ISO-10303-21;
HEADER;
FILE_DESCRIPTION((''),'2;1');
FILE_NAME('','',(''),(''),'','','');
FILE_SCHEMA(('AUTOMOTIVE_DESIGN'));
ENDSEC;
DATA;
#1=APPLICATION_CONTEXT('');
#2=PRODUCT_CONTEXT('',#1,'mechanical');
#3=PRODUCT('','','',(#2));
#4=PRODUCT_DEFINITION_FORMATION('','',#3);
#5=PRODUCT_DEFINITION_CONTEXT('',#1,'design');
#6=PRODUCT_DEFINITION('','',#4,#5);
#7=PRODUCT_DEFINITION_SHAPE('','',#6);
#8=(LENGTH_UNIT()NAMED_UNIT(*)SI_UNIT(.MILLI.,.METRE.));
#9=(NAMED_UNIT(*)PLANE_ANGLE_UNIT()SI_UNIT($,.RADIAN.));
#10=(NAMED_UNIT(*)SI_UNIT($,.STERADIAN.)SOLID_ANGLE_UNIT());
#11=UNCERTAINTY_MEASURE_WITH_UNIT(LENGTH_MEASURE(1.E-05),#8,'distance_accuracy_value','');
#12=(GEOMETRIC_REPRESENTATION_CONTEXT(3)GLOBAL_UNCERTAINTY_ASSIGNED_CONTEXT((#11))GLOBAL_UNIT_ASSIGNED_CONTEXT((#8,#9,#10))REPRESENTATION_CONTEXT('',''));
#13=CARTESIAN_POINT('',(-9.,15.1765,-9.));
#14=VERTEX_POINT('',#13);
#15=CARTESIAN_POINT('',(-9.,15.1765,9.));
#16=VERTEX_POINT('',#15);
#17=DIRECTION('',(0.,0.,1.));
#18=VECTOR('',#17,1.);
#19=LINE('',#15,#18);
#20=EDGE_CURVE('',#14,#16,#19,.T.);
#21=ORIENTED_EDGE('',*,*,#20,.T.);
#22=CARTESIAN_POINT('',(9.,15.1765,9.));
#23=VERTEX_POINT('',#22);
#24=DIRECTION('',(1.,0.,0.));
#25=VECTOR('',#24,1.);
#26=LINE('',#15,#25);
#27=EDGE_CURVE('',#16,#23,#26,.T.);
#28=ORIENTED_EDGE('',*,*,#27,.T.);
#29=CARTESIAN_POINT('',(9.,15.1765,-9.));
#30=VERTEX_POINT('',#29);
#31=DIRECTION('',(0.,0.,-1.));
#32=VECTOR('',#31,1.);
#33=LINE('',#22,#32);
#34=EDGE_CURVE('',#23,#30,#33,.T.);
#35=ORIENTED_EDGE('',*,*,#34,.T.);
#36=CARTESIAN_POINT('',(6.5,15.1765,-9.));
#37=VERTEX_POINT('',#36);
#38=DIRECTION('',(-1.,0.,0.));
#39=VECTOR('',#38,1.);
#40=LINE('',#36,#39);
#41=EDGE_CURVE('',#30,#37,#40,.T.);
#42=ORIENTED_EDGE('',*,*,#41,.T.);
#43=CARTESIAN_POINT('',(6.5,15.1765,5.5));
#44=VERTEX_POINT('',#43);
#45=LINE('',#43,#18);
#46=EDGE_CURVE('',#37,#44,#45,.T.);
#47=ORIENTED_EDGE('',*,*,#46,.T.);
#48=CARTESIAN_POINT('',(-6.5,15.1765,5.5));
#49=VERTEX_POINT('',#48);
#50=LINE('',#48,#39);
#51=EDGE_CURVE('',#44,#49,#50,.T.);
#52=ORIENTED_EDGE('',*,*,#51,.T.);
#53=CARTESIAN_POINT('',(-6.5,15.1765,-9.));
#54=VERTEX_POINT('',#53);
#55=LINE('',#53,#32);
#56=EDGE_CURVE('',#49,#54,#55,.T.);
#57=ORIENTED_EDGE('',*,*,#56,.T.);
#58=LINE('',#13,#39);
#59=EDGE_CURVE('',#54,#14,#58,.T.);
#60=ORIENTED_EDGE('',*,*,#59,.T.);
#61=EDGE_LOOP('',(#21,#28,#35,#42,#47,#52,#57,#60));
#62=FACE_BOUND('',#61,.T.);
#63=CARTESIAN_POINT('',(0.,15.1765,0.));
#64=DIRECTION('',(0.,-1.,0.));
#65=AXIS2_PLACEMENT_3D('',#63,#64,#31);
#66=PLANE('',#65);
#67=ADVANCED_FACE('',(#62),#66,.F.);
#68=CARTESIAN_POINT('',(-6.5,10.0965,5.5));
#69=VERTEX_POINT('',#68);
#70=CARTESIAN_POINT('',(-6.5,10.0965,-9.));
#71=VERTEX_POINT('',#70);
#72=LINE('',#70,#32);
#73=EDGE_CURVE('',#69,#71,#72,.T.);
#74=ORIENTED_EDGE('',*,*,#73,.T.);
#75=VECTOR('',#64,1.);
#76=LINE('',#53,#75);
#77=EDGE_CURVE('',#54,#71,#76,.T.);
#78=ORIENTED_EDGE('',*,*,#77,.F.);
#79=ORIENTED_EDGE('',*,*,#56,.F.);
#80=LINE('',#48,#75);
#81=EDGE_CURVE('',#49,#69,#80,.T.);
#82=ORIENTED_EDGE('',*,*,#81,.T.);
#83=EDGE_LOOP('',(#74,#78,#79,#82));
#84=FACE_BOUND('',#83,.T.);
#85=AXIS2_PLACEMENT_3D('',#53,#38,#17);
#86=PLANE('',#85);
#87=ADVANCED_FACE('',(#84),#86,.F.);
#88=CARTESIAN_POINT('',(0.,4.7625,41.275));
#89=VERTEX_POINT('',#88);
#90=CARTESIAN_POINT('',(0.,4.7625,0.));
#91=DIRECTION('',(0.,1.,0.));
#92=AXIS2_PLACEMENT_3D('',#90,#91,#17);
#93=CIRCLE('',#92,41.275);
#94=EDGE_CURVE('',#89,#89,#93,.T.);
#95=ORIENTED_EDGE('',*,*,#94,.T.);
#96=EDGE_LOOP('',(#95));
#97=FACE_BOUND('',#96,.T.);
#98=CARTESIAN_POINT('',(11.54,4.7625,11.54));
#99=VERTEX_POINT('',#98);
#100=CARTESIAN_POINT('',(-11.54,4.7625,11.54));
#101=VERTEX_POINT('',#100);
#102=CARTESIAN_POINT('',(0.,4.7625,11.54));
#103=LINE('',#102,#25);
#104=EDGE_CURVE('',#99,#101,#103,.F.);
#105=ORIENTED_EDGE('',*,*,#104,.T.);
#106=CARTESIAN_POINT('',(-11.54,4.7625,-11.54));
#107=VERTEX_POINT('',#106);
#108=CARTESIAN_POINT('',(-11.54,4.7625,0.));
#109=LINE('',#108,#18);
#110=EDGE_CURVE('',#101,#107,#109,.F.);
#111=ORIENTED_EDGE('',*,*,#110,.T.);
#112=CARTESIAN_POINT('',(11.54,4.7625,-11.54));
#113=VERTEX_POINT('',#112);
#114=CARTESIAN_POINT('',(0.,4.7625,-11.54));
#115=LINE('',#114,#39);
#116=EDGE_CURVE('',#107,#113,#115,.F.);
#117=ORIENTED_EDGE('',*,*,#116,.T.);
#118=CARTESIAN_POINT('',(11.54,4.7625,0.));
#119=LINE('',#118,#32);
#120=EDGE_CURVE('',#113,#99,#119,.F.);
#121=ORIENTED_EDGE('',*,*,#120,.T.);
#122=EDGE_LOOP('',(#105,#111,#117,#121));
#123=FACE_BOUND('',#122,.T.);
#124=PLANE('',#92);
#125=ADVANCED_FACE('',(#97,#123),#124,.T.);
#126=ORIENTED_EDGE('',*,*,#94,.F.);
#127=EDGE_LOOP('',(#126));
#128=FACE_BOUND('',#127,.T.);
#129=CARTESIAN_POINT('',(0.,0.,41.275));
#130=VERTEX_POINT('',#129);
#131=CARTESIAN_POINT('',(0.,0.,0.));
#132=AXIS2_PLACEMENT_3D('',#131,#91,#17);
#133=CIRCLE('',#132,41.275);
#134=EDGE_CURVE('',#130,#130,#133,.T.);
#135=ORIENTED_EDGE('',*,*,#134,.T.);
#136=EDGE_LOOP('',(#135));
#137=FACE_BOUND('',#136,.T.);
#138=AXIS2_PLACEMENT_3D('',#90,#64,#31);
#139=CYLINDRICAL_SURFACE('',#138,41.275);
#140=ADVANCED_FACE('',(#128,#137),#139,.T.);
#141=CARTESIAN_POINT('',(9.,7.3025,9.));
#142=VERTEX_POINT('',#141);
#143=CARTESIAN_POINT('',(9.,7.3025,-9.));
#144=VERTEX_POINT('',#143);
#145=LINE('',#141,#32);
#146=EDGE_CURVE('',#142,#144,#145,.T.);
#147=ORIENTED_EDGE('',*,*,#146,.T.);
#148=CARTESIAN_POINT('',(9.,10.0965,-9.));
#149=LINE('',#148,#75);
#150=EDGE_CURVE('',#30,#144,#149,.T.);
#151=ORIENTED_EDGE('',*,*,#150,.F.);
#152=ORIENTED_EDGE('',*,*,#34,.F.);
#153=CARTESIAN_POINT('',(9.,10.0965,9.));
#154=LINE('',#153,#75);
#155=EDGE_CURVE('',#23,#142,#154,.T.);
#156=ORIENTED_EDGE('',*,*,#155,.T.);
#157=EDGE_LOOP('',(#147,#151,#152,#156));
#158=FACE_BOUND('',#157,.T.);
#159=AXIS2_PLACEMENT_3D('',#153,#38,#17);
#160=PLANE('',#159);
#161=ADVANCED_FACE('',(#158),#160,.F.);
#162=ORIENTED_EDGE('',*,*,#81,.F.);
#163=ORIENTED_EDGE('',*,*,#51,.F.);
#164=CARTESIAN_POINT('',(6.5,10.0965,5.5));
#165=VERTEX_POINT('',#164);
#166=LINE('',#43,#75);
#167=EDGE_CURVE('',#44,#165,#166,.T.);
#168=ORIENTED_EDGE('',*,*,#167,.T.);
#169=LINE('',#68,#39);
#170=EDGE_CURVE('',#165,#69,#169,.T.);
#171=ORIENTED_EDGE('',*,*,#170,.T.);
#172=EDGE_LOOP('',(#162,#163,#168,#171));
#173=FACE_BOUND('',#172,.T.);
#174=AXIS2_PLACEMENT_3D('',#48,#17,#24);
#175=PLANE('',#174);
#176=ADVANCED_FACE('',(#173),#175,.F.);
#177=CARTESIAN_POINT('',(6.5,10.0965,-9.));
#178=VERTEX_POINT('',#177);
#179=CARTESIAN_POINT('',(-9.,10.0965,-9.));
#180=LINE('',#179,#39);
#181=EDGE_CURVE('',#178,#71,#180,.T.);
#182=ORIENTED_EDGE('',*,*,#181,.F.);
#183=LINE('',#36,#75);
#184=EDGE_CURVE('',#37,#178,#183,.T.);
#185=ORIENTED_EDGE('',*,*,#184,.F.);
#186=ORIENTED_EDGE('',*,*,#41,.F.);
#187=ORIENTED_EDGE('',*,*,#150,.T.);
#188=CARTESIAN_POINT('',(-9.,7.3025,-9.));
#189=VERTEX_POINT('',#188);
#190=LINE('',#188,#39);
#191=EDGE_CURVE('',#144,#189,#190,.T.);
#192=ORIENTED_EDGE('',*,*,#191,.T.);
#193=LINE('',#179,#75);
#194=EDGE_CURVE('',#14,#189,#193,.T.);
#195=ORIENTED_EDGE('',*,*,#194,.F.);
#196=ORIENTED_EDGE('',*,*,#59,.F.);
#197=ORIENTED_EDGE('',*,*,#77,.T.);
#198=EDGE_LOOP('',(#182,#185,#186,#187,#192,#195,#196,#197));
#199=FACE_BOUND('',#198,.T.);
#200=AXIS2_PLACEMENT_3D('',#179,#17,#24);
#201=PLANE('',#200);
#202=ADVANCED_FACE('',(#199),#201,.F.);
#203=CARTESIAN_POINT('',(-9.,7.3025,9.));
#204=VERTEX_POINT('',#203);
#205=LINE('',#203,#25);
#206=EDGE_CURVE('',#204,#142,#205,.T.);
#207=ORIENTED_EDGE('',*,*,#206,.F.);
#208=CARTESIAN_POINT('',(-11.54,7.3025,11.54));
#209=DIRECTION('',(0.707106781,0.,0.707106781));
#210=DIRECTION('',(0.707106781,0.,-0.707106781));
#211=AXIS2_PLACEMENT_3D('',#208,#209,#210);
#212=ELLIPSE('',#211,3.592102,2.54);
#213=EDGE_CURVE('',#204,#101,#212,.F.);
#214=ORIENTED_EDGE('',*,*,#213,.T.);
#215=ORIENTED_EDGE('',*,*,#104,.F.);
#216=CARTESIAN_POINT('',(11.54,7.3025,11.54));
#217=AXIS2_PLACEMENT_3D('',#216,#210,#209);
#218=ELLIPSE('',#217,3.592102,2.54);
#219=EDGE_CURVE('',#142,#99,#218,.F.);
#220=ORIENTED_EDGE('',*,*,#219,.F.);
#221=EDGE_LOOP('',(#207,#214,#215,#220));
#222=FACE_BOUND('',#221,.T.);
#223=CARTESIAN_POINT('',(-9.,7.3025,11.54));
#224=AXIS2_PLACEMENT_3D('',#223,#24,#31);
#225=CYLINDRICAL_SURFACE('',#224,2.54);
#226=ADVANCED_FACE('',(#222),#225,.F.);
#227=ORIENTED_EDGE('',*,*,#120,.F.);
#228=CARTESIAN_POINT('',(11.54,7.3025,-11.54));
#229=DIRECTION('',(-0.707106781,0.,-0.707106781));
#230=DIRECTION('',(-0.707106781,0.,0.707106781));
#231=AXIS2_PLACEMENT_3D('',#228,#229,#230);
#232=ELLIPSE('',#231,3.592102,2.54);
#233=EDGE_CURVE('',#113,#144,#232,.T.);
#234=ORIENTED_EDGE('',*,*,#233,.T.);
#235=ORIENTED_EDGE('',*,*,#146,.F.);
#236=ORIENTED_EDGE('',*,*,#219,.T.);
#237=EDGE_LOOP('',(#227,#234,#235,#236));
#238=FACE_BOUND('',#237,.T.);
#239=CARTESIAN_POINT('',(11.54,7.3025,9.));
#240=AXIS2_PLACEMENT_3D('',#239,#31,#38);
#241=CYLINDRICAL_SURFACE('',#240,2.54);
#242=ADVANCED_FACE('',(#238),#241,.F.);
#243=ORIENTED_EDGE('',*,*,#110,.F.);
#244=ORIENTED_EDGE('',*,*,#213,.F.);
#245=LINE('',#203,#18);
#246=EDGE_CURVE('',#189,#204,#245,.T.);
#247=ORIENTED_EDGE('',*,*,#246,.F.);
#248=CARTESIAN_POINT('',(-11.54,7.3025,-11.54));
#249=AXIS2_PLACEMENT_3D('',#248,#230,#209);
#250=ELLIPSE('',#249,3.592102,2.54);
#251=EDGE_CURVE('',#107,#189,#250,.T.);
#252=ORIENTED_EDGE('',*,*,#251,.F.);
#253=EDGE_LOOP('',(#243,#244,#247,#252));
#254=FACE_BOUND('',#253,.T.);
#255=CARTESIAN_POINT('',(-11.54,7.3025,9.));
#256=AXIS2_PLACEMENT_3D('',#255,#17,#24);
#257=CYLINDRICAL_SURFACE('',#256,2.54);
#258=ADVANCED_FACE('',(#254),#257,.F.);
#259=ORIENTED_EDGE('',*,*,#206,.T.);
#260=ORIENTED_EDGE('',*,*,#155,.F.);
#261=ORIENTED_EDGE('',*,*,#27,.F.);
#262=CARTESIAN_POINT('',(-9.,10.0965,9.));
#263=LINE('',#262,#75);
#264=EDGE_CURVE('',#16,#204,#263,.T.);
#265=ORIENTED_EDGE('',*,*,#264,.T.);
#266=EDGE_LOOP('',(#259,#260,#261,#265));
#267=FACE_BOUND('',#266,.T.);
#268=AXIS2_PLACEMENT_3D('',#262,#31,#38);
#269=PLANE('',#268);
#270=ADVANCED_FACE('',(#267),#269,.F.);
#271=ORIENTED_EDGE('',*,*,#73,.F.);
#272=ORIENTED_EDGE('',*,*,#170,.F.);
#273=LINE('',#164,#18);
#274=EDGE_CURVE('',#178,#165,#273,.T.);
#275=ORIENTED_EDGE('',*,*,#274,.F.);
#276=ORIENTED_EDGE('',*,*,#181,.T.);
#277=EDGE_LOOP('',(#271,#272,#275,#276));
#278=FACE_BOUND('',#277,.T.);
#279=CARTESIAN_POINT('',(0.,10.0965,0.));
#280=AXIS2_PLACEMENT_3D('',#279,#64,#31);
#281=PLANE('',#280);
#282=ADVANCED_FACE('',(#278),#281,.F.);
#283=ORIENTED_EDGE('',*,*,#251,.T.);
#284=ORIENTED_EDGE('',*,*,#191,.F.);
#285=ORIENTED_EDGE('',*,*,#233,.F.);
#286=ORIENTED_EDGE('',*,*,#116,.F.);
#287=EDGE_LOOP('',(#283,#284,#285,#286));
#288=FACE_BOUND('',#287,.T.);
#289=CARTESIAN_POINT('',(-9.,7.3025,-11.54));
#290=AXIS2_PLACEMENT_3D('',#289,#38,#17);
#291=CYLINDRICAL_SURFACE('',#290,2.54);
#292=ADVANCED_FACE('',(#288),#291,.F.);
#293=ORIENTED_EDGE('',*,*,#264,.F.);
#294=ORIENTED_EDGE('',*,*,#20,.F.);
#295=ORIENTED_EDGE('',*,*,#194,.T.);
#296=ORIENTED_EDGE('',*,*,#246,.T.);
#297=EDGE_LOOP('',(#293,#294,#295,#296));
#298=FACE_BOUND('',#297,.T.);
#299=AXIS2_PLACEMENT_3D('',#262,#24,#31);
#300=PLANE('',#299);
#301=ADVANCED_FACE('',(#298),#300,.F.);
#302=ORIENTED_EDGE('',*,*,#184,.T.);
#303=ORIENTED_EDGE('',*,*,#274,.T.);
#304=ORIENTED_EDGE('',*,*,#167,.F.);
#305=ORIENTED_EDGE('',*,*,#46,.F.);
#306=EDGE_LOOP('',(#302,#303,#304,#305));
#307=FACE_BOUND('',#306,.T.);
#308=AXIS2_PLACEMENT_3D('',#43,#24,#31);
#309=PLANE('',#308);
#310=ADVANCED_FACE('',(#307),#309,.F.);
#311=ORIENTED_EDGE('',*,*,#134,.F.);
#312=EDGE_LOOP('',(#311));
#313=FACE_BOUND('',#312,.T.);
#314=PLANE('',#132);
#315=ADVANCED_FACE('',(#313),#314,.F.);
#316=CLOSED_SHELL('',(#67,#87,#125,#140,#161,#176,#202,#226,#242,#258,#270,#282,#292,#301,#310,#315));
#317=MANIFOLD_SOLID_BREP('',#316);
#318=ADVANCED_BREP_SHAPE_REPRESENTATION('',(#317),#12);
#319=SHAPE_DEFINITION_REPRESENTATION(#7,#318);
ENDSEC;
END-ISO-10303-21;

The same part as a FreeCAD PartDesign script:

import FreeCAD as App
import Part
import Sketcher
Q = App.Units.Quantity


def edges_at(feature, points):
    """Names of the edges that pass closest to the given points."""
    edges = feature.Shape.Edges
    near = lambda p: min(range(len(edges)), key=lambda i: edges[i].distToShape(Part.Vertex(*p))[0])
    return sorted({f"Edge{near(p) + 1}" for p in points})


def add_polygon(sketch, points):
    """Adds a closed chain of lines whose ends are joined by coincident constraints."""
    first, n = sketch.GeometryCount, len(points)
    for a, b in zip(points, points[1:] + points[:1]):
        sketch.addGeometry(Part.LineSegment(App.Vector(*a, 0), App.Vector(*b, 0)), False)
    for i in range(n):
        sketch.addConstraint(Sketcher.Constraint("Coincident", first + i, 2, first + (i + 1) % n, 1))

doc = App.newDocument("Part")
params = doc.addObject("Spreadsheet::Sheet", "Params")
for row, (alias, value) in enumerate([
    ("sketch1_diameter", "3.25 in"),
    ("pad1_length", "0.1875 in"),
    ("pad2_length", "0.21 in"),
    ("fillet_radius", "0.1 in"),
    ("pad3_length", "0.2 in"),
], start=1):
    params.set(f"A{row}", alias)
    params.set(f"B{row}", "=" + value)
    params.setAlias(f"B{row}", alias)

body = doc.addObject("PartDesign::Body", "Body")

# Sketch on XZ plane
sketch1 = body.newObject("Sketcher::SketchObject", "Sketch")
sketch1.AttachmentSupport = (doc.getObject("XZ_Plane"), [""])
sketch1.MapMode = "FlatFace"
sketch1.addGeometry(Part.Circle(App.Vector(0, 0, 0), App.Vector(0, 0, 1), 41.275), False)
sketch1.addConstraint([
    Sketcher.Constraint("Coincident", 0, 3, -1, 1),
    Sketcher.Constraint("Diameter", 0, Q("3.25 in")),
])
sketch1.setExpression("Constraints[1]", "Params.sketch1_diameter")
pad1 = body.newObject("PartDesign::Pad", "Pad")
pad1.Profile = sketch1
pad1.setExpression("Length", "Params.pad1_length")
pad1.Reversed = True

# Sketch on XZ plane
sketch2 = body.newObject("Sketcher::SketchObject", "Sketch001")
sketch2.AttachmentSupport = (doc.getObject("XZ_Plane"), [""])
sketch2.MapMode = "FlatFace"
sketch2.AttachmentOffset = App.Placement(App.Vector(0, 0, -0.1875 * 25.4), App.Rotation())
add_polygon(sketch2, [(-9, -9), (-9, 9), (9, 9), (9, -9)])  # lines 0-3
sketch2.addConstraint([
    Sketcher.Constraint("Vertical", 0),
    Sketcher.Constraint("Horizontal", 1),
    Sketcher.Constraint("Vertical", 2),
    Sketcher.Constraint("Horizontal", 3),
    Sketcher.Constraint("Symmetric", 0, 2, 2, 2, -1, 1),
    Sketcher.Constraint("Equal", 3, 0),
    Sketcher.Constraint("DistanceX", 1, 1, 1, 2, 18.0),
])
pad2 = body.newObject("PartDesign::Pad", "Pad001")
pad2.Profile = sketch2
pad2.setExpression("Length", "Params.pad2_length")
pad2.Reversed = True
doc.recompute()

fillet = body.newObject("PartDesign::Fillet", "Fillet")
fillet.Base = (pad2, edges_at(pad2, [
    (9, 4.763, 0),
    (0, 4.763, -9),
    (-9, 4.763, 0),
    (0, 4.763, 9),
]))
fillet.setExpression("Radius", "Params.fillet_radius")

# Sketch on XZ plane
sketch3 = body.newObject("Sketcher::SketchObject", "Sketch002")
sketch3.AttachmentSupport = (doc.getObject("XZ_Plane"), [""])
sketch3.MapMode = "FlatFace"
sketch3.AttachmentOffset = App.Placement(App.Vector(0, 0, -0.3975 * 25.4), App.Rotation())
add_polygon(sketch3, [(-9, 9), (9, 9), (9, -9), (6.5, -9), (6.5, 5.5), (-6.5, 5.5), (-6.5, -9), (-9, -9)])  # lines 0-7
sketch3.addConstraint([
    Sketcher.Constraint("Horizontal", 0),
    Sketcher.Constraint("Vertical", 1),
    Sketcher.Constraint("Horizontal", 2),
    Sketcher.Constraint("Vertical", 3),
    Sketcher.Constraint("Horizontal", 4),
    Sketcher.Constraint("Vertical", 5),
    Sketcher.Constraint("Horizontal", 6),
    Sketcher.Constraint("Vertical", 7),
    Sketcher.Constraint("Symmetric", 0, 2, 6, 2, -1, 1),
    Sketcher.Constraint("Symmetric", 2, 2, 5, 2, -2),
    Sketcher.Constraint("Equal", 0, 1),
    Sketcher.Constraint("DistanceX", 0, 1, 0, 2, 18.0),
    Sketcher.Constraint("DistanceX", 2, 2, 2, 1, 2.5),
    Sketcher.Constraint("DistanceY", 3, 1, 3, 2, 14.5),
])
pad3 = body.newObject("PartDesign::Pad", "Pad002")
pad3.Profile = sketch3
pad3.setExpression("Length", "Params.pad3_length")
pad3.Reversed = True

doc.recompute()
